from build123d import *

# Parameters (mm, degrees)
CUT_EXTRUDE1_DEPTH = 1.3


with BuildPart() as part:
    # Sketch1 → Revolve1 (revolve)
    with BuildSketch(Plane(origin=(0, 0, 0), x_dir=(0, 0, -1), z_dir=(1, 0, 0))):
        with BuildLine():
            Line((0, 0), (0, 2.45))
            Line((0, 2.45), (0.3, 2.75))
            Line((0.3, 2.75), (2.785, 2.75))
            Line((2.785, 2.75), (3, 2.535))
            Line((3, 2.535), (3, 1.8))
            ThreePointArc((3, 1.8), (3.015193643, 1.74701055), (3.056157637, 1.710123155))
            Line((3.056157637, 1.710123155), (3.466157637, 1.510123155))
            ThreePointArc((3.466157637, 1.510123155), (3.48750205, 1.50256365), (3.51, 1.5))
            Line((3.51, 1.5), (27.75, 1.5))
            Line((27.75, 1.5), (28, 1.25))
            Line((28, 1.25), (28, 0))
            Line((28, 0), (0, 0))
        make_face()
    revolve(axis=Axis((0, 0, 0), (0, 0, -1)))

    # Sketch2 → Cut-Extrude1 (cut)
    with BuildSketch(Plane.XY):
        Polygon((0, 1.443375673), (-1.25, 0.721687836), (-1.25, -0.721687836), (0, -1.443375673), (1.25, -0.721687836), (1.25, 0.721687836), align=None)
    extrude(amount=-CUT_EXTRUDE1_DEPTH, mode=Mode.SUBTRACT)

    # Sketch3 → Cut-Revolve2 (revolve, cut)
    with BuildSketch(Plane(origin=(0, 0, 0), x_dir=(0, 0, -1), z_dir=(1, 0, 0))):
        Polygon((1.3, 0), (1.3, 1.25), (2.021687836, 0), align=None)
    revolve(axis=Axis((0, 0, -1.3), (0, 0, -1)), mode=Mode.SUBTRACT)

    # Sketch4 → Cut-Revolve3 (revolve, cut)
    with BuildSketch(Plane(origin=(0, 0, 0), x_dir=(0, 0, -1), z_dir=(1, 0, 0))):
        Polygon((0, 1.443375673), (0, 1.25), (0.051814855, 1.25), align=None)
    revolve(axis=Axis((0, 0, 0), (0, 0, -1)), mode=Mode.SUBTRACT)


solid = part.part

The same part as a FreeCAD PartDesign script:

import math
import FreeCAD as App
import Part
import Sketcher
from FreeCAD import Vector
Q = App.Units.Quantity


def add_polygon(sketch, points):
    """Adds a closed chain of lines whose ends are joined by coincident constraints."""
    first, n = sketch.GeometryCount, len(points)
    for a, b in zip(points, points[1:] + points[:1]):
        sketch.addGeometry(Part.LineSegment(App.Vector(*a, 0), App.Vector(*b, 0)), False)
    for i in range(n):
        sketch.addConstraint(Sketcher.Constraint("Coincident", first + i, 2, first + (i + 1) % n, 1))

doc = App.newDocument("Part")
body = doc.addObject("PartDesign::Body", "Body")

sketch1 = doc.addObject("Sketcher::SketchObject", "Sketch")
body.addObject(sketch1)
sketch1.AttachmentSupport = (doc.YZ_Plane, [""])
sketch1.MapMode = "FlatFace"
sketch1.addGeometry(Part.LineSegment(Vector(2.45, 0, 0), Vector(0, 0, 0)), False)
sketch1.addGeometry(Part.LineSegment(Vector(0, 0, 0), Vector(0, -28, 0)), False)
sketch1.addGeometry(Part.LineSegment(Vector(0, -28, 0), Vector(1.25, -28, 0)), False)
sketch1.addGeometry(Part.LineSegment(Vector(1.25, -28, 0), Vector(1.5, -27.75, 0)), False)
sketch1.addGeometry(Part.LineSegment(Vector(1.5, -27.75, 0), Vector(1.5, -3.51, 0)), False)
sketch1.addGeometry(Part.ArcOfCircle(Part.Circle(Vector(1.6, -3.51, 0), Vector(0, 0, 1), 0.1), math.radians(154), math.radians(180)), False)
sketch1.addGeometry(Part.LineSegment(Vector(1.51, -3.466, 0), Vector(1.71, -3.056, 0)), False)
sketch1.addGeometry(Part.ArcOfCircle(Part.Circle(Vector(1.8, -3.1, 0), Vector(0, 0, 1), 0.1), math.radians(90), math.radians(154)), False)
sketch1.addGeometry(Part.LineSegment(Vector(1.8, -3, 0), Vector(2.535, -3, 0)), False)
sketch1.addGeometry(Part.LineSegment(Vector(2.535, -3, 0), Vector(2.75, -2.785, 0)), False)
sketch1.addGeometry(Part.LineSegment(Vector(2.75, -2.785, 0), Vector(2.75, -0.3, 0)), False)
sketch1.addGeometry(Part.LineSegment(Vector(2.75, -0.3, 0), Vector(2.45, 0, 0)), False)
sketch1.addConstraint(Sketcher.Constraint("Coincident", 0, 2, 1, 1))
sketch1.addConstraint(Sketcher.Constraint("Coincident", 1, 2, 2, 1))
sketch1.addConstraint(Sketcher.Constraint("Coincident", 2, 2, 3, 1))
sketch1.addConstraint(Sketcher.Constraint("Coincident", 3, 2, 4, 1))
sketch1.addConstraint(Sketcher.Constraint("Tangent", 4, 2, 5, 2))
sketch1.addConstraint(Sketcher.Constraint("Tangent", 5, 1, 6, 1))
sketch1.addConstraint(Sketcher.Constraint("Tangent", 6, 2, 7, 2))
sketch1.addConstraint(Sketcher.Constraint("Tangent", 7, 1, 8, 1))
sketch1.addConstraint(Sketcher.Constraint("Coincident", 8, 2, 9, 1))
sketch1.addConstraint(Sketcher.Constraint("Coincident", 9, 2, 10, 1))
sketch1.addConstraint(Sketcher.Constraint("Coincident", 10, 2, 11, 1))
sketch1.addConstraint(Sketcher.Constraint("Coincident", 11, 2, 0, 1))
sketch1.addConstraint(Sketcher.Constraint("Horizontal", 0))
sketch1.addConstraint(Sketcher.Constraint("Vertical", 1))
sketch1.addConstraint(Sketcher.Constraint("Horizontal", 2))
sketch1.addConstraint(Sketcher.Constraint("Vertical", 4))
sketch1.addConstraint(Sketcher.Constraint("Horizontal", 8))
sketch1.addConstraint(Sketcher.Constraint("Vertical", 10))
sketch1.addConstraint(Sketcher.Constraint("Coincident", 0, 2, -1, 1))
sketch1.addConstraint(Sketcher.Constraint("Equal", 5, 7))
sketch1.addConstraint(Sketcher.Constraint("Parallel", 3, 9))
sketch1.addConstraint(Sketcher.Constraint("Perpendicular", 9, 11))
sketch1.addConstraint(Sketcher.Constraint("Radius", 5, Q("0.1 mm")))
sketch1.addConstraint(Sketcher.Constraint("DistanceY", 1, 2, 1, 1, Q("28 mm")))
sketch1.addConstraint(Sketcher.Constraint("Angle", 3, Q("45 deg")))
sketch1.addConstraint(Sketcher.Constraint("DistanceY", 7, 1, -1, 1, Q("3 mm")))
sketch1.addConstraint(Sketcher.Constraint("DistanceX", 0, 2, 0, 1, Q("2.45 mm")))
sketch1.addConstraint(Sketcher.Constraint("DistanceX", 2, 1, 2, 2, Q("1.25 mm")))
sketch1.addConstraint(Sketcher.Constraint("DistanceY", 4, 1, 4, 2, Q("24.24 mm")))
sketch1.addConstraint(Sketcher.Constraint("DistanceX", -1, 1, 5, 3, Q("1.6 mm")))
sketch1.addConstraint(Sketcher.Constraint("DistanceX", -1, 1, 7, 3, Q("1.8 mm")))
sketch1.addConstraint(Sketcher.Constraint("DistanceY", 10, 2, -1, 1, Q("0.3 mm")))
sketch1.addConstraint(Sketcher.Constraint("DistanceX", 8, 1, 8, 2, Q("0.735 mm")))
revolution = doc.addObject("PartDesign::Revolution", "Revolution")
body.addObject(revolution)
revolution.Profile = sketch1
revolution.ReferenceAxis = (sketch1, ["V_Axis"])
revolution.Angle = 360

sketch2 = doc.addObject("Sketcher::SketchObject", "Sketch001")
body.addObject(sketch2)
sketch2.AttachmentSupport = (doc.XY_Plane, [""])
sketch2.MapMode = "FlatFace"
add_polygon(sketch2, [(0, 1.4), (-1.2, 0.7), (-1.2, -0.7), (0, -1.4), (1.2, -0.7), (1.2, 0.7)])
sketch2.addConstraint(Sketcher.Constraint("Vertical", 1))
sketch2.addConstraint(Sketcher.Constraint("Vertical", 4))
sketch2.addConstraint(Sketcher.Constraint("Symmetric", 0, 2, 3, 2, -1, 1))
sketch2.addConstraint(Sketcher.Constraint("Symmetric", 2, 2, 5, 2, -1, 1))
sketch2.addConstraint(Sketcher.Constraint("PointOnObject", 2, 2, -2))
sketch2.addConstraint(Sketcher.Constraint("Parallel", 2, 5))
sketch2.addConstraint(Sketcher.Constraint("Horizontal", 1, 2, 3, 2))
sketch2.addConstraint(Sketcher.Constraint("Angle", 0, Q("-150 deg")))
sketch2.addConstraint(Sketcher.Constraint("DistanceX", 1, 2, 3, 2, Q("2.5 mm")))
sketch2.addConstraint(Sketcher.Constraint("DistanceY", 1, 2, 1, 1, Q("1.443376 mm")))
pocket1 = doc.addObject("PartDesign::Pocket", "Pocket")
body.addObject(pocket1)
pocket1.Profile = sketch2
pocket1.Length = 1.3

sketch3 = doc.addObject("Sketcher::SketchObject", "Sketch002")
body.addObject(sketch3)
sketch3.AttachmentSupport = (doc.YZ_Plane, [""])
sketch3.MapMode = "FlatFace"
add_polygon(sketch3, [(1.2, -1.3), (0, -1.3), (0, -2)])
sketch3.addConstraint(Sketcher.Constraint("Horizontal", 0))
sketch3.addConstraint(Sketcher.Constraint("Vertical", 1))
sketch3.addConstraint(Sketcher.Constraint("PointOnObject", 0, 2, -2))
sketch3.addConstraint(Sketcher.Constraint("Angle", 2, Q("30 deg")))
sketch3.addConstraint(Sketcher.Constraint("DistanceX", 0, 2, 0, 1, Q("1.25 mm")))
sketch3.addConstraint(Sketcher.Constraint("DistanceY", 0, 2, -1, 1, Q("1.3 mm")))
groove = doc.addObject("PartDesign::Groove", "Groove")
body.addObject(groove)
groove.Profile = sketch3
groove.ReferenceAxis = (sketch3, ["V_Axis"])
groove.Angle = 360

sketch4 = doc.addObject("Sketcher::SketchObject", "Sketch003")
body.addObject(sketch4)
sketch4.AttachmentSupport = (doc.YZ_Plane, [""])
sketch4.MapMode = "FlatFace"
add_polygon(sketch4, [(1.44, 0), (1.25, 0), (1.25, -0.05)])
sketch4.addConstraint(Sketcher.Constraint("Horizontal", 0))
sketch4.addConstraint(Sketcher.Constraint("Vertical", 1))
sketch4.addConstraint(Sketcher.Constraint("PointOnObject", 0, 2, -1))
sketch4.addConstraint(Sketcher.Constraint("Angle", 2, Q("15 deg")))
sketch4.addConstraint(Sketcher.Constraint("DistanceX", -1, 1, 0, 2, Q("1.25 mm")))
sketch4.addConstraint(Sketcher.Constraint("DistanceX", 0, 2, 0, 1, Q("0.193376 mm")))
groove2 = doc.addObject("PartDesign::Groove", "Groove001")
body.addObject(groove2)
groove2.Profile = sketch4
groove2.ReferenceAxis = (sketch4, ["V_Axis"])
groove2.Angle = 360

doc.recompute()
